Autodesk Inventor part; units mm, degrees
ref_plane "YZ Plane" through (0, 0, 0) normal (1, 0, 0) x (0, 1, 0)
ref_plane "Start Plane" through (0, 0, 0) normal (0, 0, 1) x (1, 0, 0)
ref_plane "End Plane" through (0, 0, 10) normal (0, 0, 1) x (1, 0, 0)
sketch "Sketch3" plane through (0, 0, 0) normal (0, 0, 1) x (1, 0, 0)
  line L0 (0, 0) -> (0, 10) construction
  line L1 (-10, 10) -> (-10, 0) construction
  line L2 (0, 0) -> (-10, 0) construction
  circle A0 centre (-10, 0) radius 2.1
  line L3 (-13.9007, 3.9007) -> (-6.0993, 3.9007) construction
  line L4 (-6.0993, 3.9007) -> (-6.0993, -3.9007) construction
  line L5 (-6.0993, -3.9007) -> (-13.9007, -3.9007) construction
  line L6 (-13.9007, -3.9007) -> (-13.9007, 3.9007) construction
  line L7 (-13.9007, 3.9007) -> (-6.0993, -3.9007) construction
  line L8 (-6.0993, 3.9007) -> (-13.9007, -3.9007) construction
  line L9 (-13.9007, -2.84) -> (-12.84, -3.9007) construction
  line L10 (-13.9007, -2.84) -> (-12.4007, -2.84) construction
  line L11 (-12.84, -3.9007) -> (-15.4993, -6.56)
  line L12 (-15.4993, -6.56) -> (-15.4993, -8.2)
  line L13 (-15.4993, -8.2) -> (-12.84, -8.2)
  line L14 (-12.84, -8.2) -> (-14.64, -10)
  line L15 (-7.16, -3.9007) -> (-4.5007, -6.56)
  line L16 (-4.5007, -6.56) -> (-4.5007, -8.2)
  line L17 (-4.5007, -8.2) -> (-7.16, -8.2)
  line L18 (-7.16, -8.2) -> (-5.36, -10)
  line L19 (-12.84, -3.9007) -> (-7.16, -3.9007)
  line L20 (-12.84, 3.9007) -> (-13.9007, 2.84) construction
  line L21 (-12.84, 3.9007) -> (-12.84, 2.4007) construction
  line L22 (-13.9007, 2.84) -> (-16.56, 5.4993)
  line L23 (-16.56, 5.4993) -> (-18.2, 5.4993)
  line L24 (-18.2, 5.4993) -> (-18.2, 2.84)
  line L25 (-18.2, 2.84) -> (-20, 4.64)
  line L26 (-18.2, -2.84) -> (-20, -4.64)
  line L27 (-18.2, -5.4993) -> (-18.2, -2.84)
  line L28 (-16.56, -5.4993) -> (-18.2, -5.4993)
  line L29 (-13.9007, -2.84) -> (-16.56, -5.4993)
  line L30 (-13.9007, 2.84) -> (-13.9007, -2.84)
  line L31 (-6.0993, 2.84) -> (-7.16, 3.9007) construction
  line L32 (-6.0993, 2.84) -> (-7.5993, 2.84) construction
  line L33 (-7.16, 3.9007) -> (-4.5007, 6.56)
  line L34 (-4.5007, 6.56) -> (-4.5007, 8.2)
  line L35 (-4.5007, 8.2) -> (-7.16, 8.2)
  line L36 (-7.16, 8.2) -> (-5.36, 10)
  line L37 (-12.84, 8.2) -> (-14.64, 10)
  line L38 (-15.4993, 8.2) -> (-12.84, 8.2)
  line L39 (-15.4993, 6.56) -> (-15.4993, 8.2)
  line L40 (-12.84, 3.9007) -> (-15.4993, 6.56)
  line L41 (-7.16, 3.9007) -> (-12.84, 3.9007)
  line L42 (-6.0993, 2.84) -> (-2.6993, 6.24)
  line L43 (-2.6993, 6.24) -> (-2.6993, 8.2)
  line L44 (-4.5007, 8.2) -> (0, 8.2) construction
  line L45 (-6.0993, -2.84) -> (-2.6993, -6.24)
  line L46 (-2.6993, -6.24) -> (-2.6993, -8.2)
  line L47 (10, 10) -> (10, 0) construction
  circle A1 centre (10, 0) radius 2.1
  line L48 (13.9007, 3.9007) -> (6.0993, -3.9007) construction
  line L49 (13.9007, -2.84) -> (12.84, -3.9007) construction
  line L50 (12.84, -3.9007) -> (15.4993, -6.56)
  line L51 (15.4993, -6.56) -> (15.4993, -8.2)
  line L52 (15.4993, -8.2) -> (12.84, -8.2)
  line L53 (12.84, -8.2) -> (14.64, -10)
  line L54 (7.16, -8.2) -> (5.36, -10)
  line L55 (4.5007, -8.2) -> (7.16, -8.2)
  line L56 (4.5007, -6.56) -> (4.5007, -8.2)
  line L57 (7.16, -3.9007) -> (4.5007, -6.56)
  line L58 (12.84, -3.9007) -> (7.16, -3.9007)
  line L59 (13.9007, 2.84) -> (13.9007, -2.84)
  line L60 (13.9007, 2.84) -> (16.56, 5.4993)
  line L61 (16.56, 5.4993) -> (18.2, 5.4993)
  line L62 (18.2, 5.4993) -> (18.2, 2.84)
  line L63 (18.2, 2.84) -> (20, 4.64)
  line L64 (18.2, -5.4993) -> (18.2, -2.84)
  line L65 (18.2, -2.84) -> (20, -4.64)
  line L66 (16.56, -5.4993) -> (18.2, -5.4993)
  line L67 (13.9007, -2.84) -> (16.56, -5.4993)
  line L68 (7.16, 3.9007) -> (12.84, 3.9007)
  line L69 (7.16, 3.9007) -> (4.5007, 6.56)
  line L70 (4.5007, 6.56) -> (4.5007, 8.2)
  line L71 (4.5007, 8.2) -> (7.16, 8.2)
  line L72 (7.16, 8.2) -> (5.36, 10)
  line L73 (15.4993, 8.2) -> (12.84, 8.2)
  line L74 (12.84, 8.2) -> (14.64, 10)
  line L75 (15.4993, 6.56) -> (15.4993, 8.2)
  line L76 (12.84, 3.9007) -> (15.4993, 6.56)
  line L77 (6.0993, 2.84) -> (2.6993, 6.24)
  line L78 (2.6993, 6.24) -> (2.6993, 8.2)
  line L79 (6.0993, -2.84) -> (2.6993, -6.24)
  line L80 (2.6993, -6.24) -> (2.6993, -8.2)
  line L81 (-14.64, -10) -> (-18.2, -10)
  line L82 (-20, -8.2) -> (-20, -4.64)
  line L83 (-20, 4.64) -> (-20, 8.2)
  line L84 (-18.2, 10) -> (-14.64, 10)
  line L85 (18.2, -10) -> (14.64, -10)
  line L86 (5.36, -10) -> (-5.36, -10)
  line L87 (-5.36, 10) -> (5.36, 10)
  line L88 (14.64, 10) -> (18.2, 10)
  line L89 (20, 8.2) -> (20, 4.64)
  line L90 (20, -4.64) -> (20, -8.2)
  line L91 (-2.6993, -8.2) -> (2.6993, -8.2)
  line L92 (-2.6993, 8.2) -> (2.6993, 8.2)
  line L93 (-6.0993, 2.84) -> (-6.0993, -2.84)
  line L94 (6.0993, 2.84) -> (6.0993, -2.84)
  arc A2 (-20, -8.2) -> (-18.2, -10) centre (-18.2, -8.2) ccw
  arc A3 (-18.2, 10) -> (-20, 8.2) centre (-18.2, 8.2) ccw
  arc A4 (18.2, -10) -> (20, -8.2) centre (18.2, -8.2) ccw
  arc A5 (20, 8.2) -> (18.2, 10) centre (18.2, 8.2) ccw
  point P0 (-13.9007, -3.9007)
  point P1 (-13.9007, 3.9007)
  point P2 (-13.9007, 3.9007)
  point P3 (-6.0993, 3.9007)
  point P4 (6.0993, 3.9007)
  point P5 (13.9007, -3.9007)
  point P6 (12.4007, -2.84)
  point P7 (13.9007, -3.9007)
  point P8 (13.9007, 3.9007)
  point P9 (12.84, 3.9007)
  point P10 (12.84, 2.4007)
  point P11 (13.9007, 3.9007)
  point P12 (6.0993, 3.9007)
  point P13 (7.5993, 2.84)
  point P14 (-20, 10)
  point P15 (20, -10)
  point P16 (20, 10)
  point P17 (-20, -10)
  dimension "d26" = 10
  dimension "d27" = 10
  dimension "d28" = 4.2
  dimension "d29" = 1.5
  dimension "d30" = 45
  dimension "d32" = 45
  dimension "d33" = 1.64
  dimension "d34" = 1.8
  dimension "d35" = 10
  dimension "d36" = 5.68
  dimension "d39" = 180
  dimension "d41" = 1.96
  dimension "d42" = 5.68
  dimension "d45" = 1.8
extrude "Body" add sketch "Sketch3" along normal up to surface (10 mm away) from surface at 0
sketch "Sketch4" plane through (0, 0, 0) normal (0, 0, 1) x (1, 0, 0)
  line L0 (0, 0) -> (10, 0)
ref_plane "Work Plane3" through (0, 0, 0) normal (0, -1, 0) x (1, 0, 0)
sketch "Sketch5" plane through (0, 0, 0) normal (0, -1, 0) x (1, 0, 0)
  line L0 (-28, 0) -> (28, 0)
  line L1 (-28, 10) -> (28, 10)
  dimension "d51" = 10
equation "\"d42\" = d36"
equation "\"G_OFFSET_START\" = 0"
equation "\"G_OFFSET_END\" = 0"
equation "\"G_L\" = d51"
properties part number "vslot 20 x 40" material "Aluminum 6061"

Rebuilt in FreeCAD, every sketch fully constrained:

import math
import FreeCAD as App
import Part
import Sketcher
from FreeCAD import Vector


def add_polygon(sketch, points):
    """Adds a closed chain of lines whose ends are joined by coincident constraints."""
    first, n = sketch.GeometryCount, len(points)
    for a, b in zip(points, points[1:] + points[:1]):
        sketch.addGeometry(Part.LineSegment(App.Vector(*a, 0), App.Vector(*b, 0)), False)
    for i in range(n):
        sketch.addConstraint(Sketcher.Constraint("Coincident", first + i, 2, first + (i + 1) % n, 1))

doc = App.newDocument("Part")
body = doc.addObject("PartDesign::Body", "Body")

# Sketch on XY plane
sketch1 = doc.addObject("Sketcher::SketchObject", "Sketch")
body.addObject(sketch1)
sketch1.AttachmentSupport = (doc.XY_Plane, [""])
sketch1.MapMode = "FlatFace"
sketch1.addGeometry(Part.LineSegment(Vector(-15.5, -6.6, 0), Vector(-12.8, -3.9, 0)), False)  # 0
sketch1.addGeometry(Part.LineSegment(Vector(-12.8, -3.9, 0), Vector(-7.2, -3.9, 0)), False)  # 1
sketch1.addGeometry(Part.LineSegment(Vector(-7.2, -3.9, 0), Vector(-4.5, -6.6, 0)), False)  # 2
sketch1.addGeometry(Part.LineSegment(Vector(-4.5, -6.6, 0), Vector(-4.5, -8.2, 0)), False)  # 3
sketch1.addGeometry(Part.LineSegment(Vector(-4.5, -8.2, 0), Vector(-7.2, -8.2, 0)), False)  # 4
sketch1.addGeometry(Part.LineSegment(Vector(-7.2, -8.2, 0), Vector(-5.4, -10, 0)), False)  # 5
sketch1.addGeometry(Part.LineSegment(Vector(-5.4, -10, 0), Vector(5.4, -10, 0)), False)  # 6
sketch1.addGeometry(Part.LineSegment(Vector(5.4, -10, 0), Vector(7.2, -8.2, 0)), False)  # 7
sketch1.addGeometry(Part.LineSegment(Vector(7.2, -8.2, 0), Vector(4.5, -8.2, 0)), False)  # 8
sketch1.addGeometry(Part.LineSegment(Vector(4.5, -8.2, 0), Vector(4.5, -6.6, 0)), False)  # 9
sketch1.addGeometry(Part.LineSegment(Vector(4.5, -6.6, 0), Vector(7.2, -3.9, 0)), False)  # 10
sketch1.addGeometry(Part.LineSegment(Vector(7.2, -3.9, 0), Vector(12.8, -3.9, 0)), False)  # 11
sketch1.addGeometry(Part.LineSegment(Vector(12.8, -3.9, 0), Vector(15.5, -6.6, 0)), False)  # 12
sketch1.addGeometry(Part.LineSegment(Vector(15.5, -6.6, 0), Vector(15.5, -8.2, 0)), False)  # 13
sketch1.addGeometry(Part.LineSegment(Vector(15.5, -8.2, 0), Vector(12.8, -8.2, 0)), False)  # 14
sketch1.addGeometry(Part.LineSegment(Vector(12.8, -8.2, 0), Vector(14.6, -10, 0)), False)  # 15
sketch1.addGeometry(Part.LineSegment(Vector(14.6, -10, 0), Vector(18.2, -10, 0)), False)  # 16
sketch1.addGeometry(Part.ArcOfCircle(Part.Circle(Vector(18.2, -8.2, 0), Vector(0, 0, 1), 1.8), math.radians(-90), math.radians(0)), False)  # 17
sketch1.addGeometry(Part.LineSegment(Vector(20, -8.2, 0), Vector(20, -4.6, 0)), False)  # 18
sketch1.addGeometry(Part.LineSegment(Vector(20, -4.6, 0), Vector(18.2, -2.8, 0)), False)  # 19
sketch1.addGeometry(Part.LineSegment(Vector(18.2, -2.8, 0), Vector(18.2, -5.5, 0)), False)  # 20
sketch1.addGeometry(Part.LineSegment(Vector(18.2, -5.5, 0), Vector(16.6, -5.5, 0)), False)  # 21
sketch1.addGeometry(Part.LineSegment(Vector(16.6, -5.5, 0), Vector(13.9, -2.8, 0)), False)  # 22
sketch1.addGeometry(Part.LineSegment(Vector(13.9, -2.8, 0), Vector(13.9, 2.8, 0)), False)  # 23
sketch1.addGeometry(Part.LineSegment(Vector(13.9, 2.8, 0), Vector(16.6, 5.5, 0)), False)  # 24
sketch1.addGeometry(Part.LineSegment(Vector(16.6, 5.5, 0), Vector(18.2, 5.5, 0)), False)  # 25
sketch1.addGeometry(Part.LineSegment(Vector(18.2, 5.5, 0), Vector(18.2, 2.8, 0)), False)  # 26
sketch1.addGeometry(Part.LineSegment(Vector(18.2, 2.8, 0), Vector(20, 4.6, 0)), False)  # 27
sketch1.addGeometry(Part.LineSegment(Vector(20, 4.6, 0), Vector(20, 8.2, 0)), False)  # 28
sketch1.addGeometry(Part.ArcOfCircle(Part.Circle(Vector(18.2, 8.2, 0), Vector(0, 0, 1), 1.8), math.radians(0), math.radians(90)), False)  # 29
sketch1.addGeometry(Part.LineSegment(Vector(18.2, 10, 0), Vector(14.6, 10, 0)), False)  # 30
sketch1.addGeometry(Part.LineSegment(Vector(14.6, 10, 0), Vector(12.8, 8.2, 0)), False)  # 31
sketch1.addGeometry(Part.LineSegment(Vector(12.8, 8.2, 0), Vector(15.5, 8.2, 0)), False)  # 32
sketch1.addGeometry(Part.LineSegment(Vector(15.5, 8.2, 0), Vector(15.5, 6.6, 0)), False)  # 33
sketch1.addGeometry(Part.LineSegment(Vector(15.5, 6.6, 0), Vector(12.8, 3.9, 0)), False)  # 34
sketch1.addGeometry(Part.LineSegment(Vector(12.8, 3.9, 0), Vector(7.2, 3.9, 0)), False)  # 35
sketch1.addGeometry(Part.LineSegment(Vector(7.2, 3.9, 0), Vector(4.5, 6.6, 0)), False)  # 36
sketch1.addGeometry(Part.LineSegment(Vector(4.5, 6.6, 0), Vector(4.5, 8.2, 0)), False)  # 37
sketch1.addGeometry(Part.LineSegment(Vector(4.5, 8.2, 0), Vector(7.2, 8.2, 0)), False)  # 38
sketch1.addGeometry(Part.LineSegment(Vector(7.2, 8.2, 0), Vector(5.4, 10, 0)), False)  # 39
sketch1.addGeometry(Part.LineSegment(Vector(5.4, 10, 0), Vector(-5.4, 10, 0)), False)  # 40
sketch1.addGeometry(Part.LineSegment(Vector(-5.4, 10, 0), Vector(-7.2, 8.2, 0)), False)  # 41
sketch1.addGeometry(Part.LineSegment(Vector(-7.2, 8.2, 0), Vector(-4.5, 8.2, 0)), False)  # 42
sketch1.addGeometry(Part.LineSegment(Vector(-4.5, 8.2, 0), Vector(-4.5, 6.6, 0)), False)  # 43
sketch1.addGeometry(Part.LineSegment(Vector(-4.5, 6.6, 0), Vector(-7.2, 3.9, 0)), False)  # 44
sketch1.addGeometry(Part.LineSegment(Vector(-7.2, 3.9, 0), Vector(-12.8, 3.9, 0)), False)  # 45
sketch1.addGeometry(Part.LineSegment(Vector(-12.8, 3.9, 0), Vector(-15.5, 6.6, 0)), False)  # 46
sketch1.addGeometry(Part.LineSegment(Vector(-15.5, 6.6, 0), Vector(-15.5, 8.2, 0)), False)  # 47
sketch1.addGeometry(Part.LineSegment(Vector(-15.5, 8.2, 0), Vector(-12.8, 8.2, 0)), False)  # 48
sketch1.addGeometry(Part.LineSegment(Vector(-12.8, 8.2, 0), Vector(-14.6, 10, 0)), False)  # 49
sketch1.addGeometry(Part.LineSegment(Vector(-14.6, 10, 0), Vector(-18.2, 10, 0)), False)  # 50
sketch1.addGeometry(Part.ArcOfCircle(Part.Circle(Vector(-18.2, 8.2, 0), Vector(0, 0, 1), 1.8), math.radians(90), math.radians(180)), False)  # 51
sketch1.addGeometry(Part.LineSegment(Vector(-20, 8.2, 0), Vector(-20, 4.6, 0)), False)  # 52
sketch1.addGeometry(Part.LineSegment(Vector(-20, 4.6, 0), Vector(-18.2, 2.8, 0)), False)  # 53
sketch1.addGeometry(Part.LineSegment(Vector(-18.2, 2.8, 0), Vector(-18.2, 5.5, 0)), False)  # 54
sketch1.addGeometry(Part.LineSegment(Vector(-18.2, 5.5, 0), Vector(-16.6, 5.5, 0)), False)  # 55
sketch1.addGeometry(Part.LineSegment(Vector(-16.6, 5.5, 0), Vector(-13.9, 2.8, 0)), False)  # 56
sketch1.addGeometry(Part.LineSegment(Vector(-13.9, 2.8, 0), Vector(-13.9, -2.8, 0)), False)  # 57
sketch1.addGeometry(Part.LineSegment(Vector(-13.9, -2.8, 0), Vector(-16.6, -5.5, 0)), False)  # 58
sketch1.addGeometry(Part.LineSegment(Vector(-16.6, -5.5, 0), Vector(-18.2, -5.5, 0)), False)  # 59
sketch1.addGeometry(Part.LineSegment(Vector(-18.2, -5.5, 0), Vector(-18.2, -2.8, 0)), False)  # 60
sketch1.addGeometry(Part.LineSegment(Vector(-18.2, -2.8, 0), Vector(-20, -4.6, 0)), False)  # 61
sketch1.addGeometry(Part.LineSegment(Vector(-20, -4.6, 0), Vector(-20, -8.2, 0)), False)  # 62
sketch1.addGeometry(Part.ArcOfCircle(Part.Circle(Vector(-18.2, -8.2, 0), Vector(0, 0, 1), 1.8), math.radians(180), math.radians(270)), False)  # 63
sketch1.addGeometry(Part.LineSegment(Vector(-18.2, -10, 0), Vector(-14.6, -10, 0)), False)  # 64
sketch1.addGeometry(Part.LineSegment(Vector(-14.6, -10, 0), Vector(-12.8, -8.2, 0)), False)  # 65
sketch1.addGeometry(Part.LineSegment(Vector(-12.8, -8.2, 0), Vector(-15.5, -8.2, 0)), False)  # 66
sketch1.addGeometry(Part.LineSegment(Vector(-15.5, -8.2, 0), Vector(-15.5, -6.6, 0)), False)  # 67
sketch1.addGeometry(Part.Circle(Vector(-10, 0, 0), Vector(0, 0, 1), 2.1), False)  # 68
add_polygon(sketch1, [(-6.1, -2.8), (-6.1, 2.8), (-2.7, 6.2), (-2.7, 8.2), (2.7, 8.2), (2.7, 6.2), (6.1, 2.8), (6.1, -2.8), (2.7, -6.2), (2.7, -8.2), (-2.7, -8.2), (-2.7, -6.2)])  # lines 69-80
sketch1.addGeometry(Part.Circle(Vector(10, 0, 0), Vector(0, 0, 1), 2.1), False)  # 81
sketch1.addConstraint(Sketcher.Constraint("Coincident", 0, 2, 1, 1))
sketch1.addConstraint(Sketcher.Constraint("Coincident", 1, 2, 2, 1))
sketch1.addConstraint(Sketcher.Constraint("Coincident", 2, 2, 3, 1))
sketch1.addConstraint(Sketcher.Constraint("Coincident", 3, 2, 4, 1))
sketch1.addConstraint(Sketcher.Constraint("Coincident", 4, 2, 5, 1))
sketch1.addConstraint(Sketcher.Constraint("Coincident", 5, 2, 6, 1))
sketch1.addConstraint(Sketcher.Constraint("Coincident", 6, 2, 7, 1))
sketch1.addConstraint(Sketcher.Constraint("Coincident", 7, 2, 8, 1))
sketch1.addConstraint(Sketcher.Constraint("Coincident", 8, 2, 9, 1))
sketch1.addConstraint(Sketcher.Constraint("Coincident", 9, 2, 10, 1))
sketch1.addConstraint(Sketcher.Constraint("Coincident", 10, 2, 11, 1))
sketch1.addConstraint(Sketcher.Constraint("Coincident", 11, 2, 12, 1))
sketch1.addConstraint(Sketcher.Constraint("Coincident", 12, 2, 13, 1))
sketch1.addConstraint(Sketcher.Constraint("Coincident", 13, 2, 14, 1))
sketch1.addConstraint(Sketcher.Constraint("Coincident", 14, 2, 15, 1))
sketch1.addConstraint(Sketcher.Constraint("Coincident", 15, 2, 16, 1))
sketch1.addConstraint(Sketcher.Constraint("Tangent", 16, 2, 17, 1))
sketch1.addConstraint(Sketcher.Constraint("Tangent", 17, 2, 18, 1))
sketch1.addConstraint(Sketcher.Constraint("Coincident", 18, 2, 19, 1))
sketch1.addConstraint(Sketcher.Constraint("Coincident", 19, 2, 20, 1))
sketch1.addConstraint(Sketcher.Constraint("Coincident", 20, 2, 21, 1))
sketch1.addConstraint(Sketcher.Constraint("Coincident", 21, 2, 22, 1))
sketch1.addConstraint(Sketcher.Constraint("Coincident", 22, 2, 23, 1))
sketch1.addConstraint(Sketcher.Constraint("Coincident", 23, 2, 24, 1))
sketch1.addConstraint(Sketcher.Constraint("Coincident", 24, 2, 25, 1))
sketch1.addConstraint(Sketcher.Constraint("Coincident", 25, 2, 26, 1))
sketch1.addConstraint(Sketcher.Constraint("Coincident", 26, 2, 27, 1))
sketch1.addConstraint(Sketcher.Constraint("Coincident", 27, 2, 28, 1))
sketch1.addConstraint(Sketcher.Constraint("Tangent", 28, 2, 29, 1))
sketch1.addConstraint(Sketcher.Constraint("Tangent", 29, 2, 30, 1))
sketch1.addConstraint(Sketcher.Constraint("Coincident", 30, 2, 31, 1))
sketch1.addConstraint(Sketcher.Constraint("Coincident", 31, 2, 32, 1))
sketch1.addConstraint(Sketcher.Constraint("Coincident", 32, 2, 33, 1))
sketch1.addConstraint(Sketcher.Constraint("Coincident", 33, 2, 34, 1))
sketch1.addConstraint(Sketcher.Constraint("Coincident", 34, 2, 35, 1))
sketch1.addConstraint(Sketcher.Constraint("Coincident", 35, 2, 36, 1))
sketch1.addConstraint(Sketcher.Constraint("Coincident", 36, 2, 37, 1))
sketch1.addConstraint(Sketcher.Constraint("Coincident", 37, 2, 38, 1))
sketch1.addConstraint(Sketcher.Constraint("Coincident", 38, 2, 39, 1))
sketch1.addConstraint(Sketcher.Constraint("Coincident", 39, 2, 40, 1))
sketch1.addConstraint(Sketcher.Constraint("Coincident", 40, 2, 41, 1))
sketch1.addConstraint(Sketcher.Constraint("Coincident", 41, 2, 42, 1))
sketch1.addConstraint(Sketcher.Constraint("Coincident", 42, 2, 43, 1))
sketch1.addConstraint(Sketcher.Constraint("Coincident", 43, 2, 44, 1))
sketch1.addConstraint(Sketcher.Constraint("Coincident", 44, 2, 45, 1))
sketch1.addConstraint(Sketcher.Constraint("Coincident", 45, 2, 46, 1))
sketch1.addConstraint(Sketcher.Constraint("Coincident", 46, 2, 47, 1))
sketch1.addConstraint(Sketcher.Constraint("Coincident", 47, 2, 48, 1))
sketch1.addConstraint(Sketcher.Constraint("Coincident", 48, 2, 49, 1))
sketch1.addConstraint(Sketcher.Constraint("Coincident", 49, 2, 50, 1))
sketch1.addConstraint(Sketcher.Constraint("Tangent", 50, 2, 51, 1))
sketch1.addConstraint(Sketcher.Constraint("Tangent", 51, 2, 52, 1))
sketch1.addConstraint(Sketcher.Constraint("Coincident", 52, 2, 53, 1))
sketch1.addConstraint(Sketcher.Constraint("Coincident", 53, 2, 54, 1))
sketch1.addConstraint(Sketcher.Constraint("Coincident", 54, 2, 55, 1))
sketch1.addConstraint(Sketcher.Constraint("Coincident", 55, 2, 56, 1))
sketch1.addConstraint(Sketcher.Constraint("Coincident", 56, 2, 57, 1))
sketch1.addConstraint(Sketcher.Constraint("Coincident", 57, 2, 58, 1))
sketch1.addConstraint(Sketcher.Constraint("Coincident", 58, 2, 59, 1))
sketch1.addConstraint(Sketcher.Constraint("Coincident", 59, 2, 60, 1))
sketch1.addConstraint(Sketcher.Constraint("Coincident", 60, 2, 61, 1))
sketch1.addConstraint(Sketcher.Constraint("Coincident", 61, 2, 62, 1))
sketch1.addConstraint(Sketcher.Constraint("Tangent", 62, 2, 63, 1))
sketch1.addConstraint(Sketcher.Constraint("Tangent", 63, 2, 64, 1))
sketch1.addConstraint(Sketcher.Constraint("Coincident", 64, 2, 65, 1))
sketch1.addConstraint(Sketcher.Constraint("Coincident", 65, 2, 66, 1))
sketch1.addConstraint(Sketcher.Constraint("Coincident", 66, 2, 67, 1))
sketch1.addConstraint(Sketcher.Constraint("Coincident", 67, 2, 0, 1))
sketch1.addConstraint(Sketcher.Constraint("Horizontal", 1))
sketch1.addConstraint(Sketcher.Constraint("Vertical", 3))
sketch1.addConstraint(Sketcher.Constraint("Horizontal", 4))
sketch1.addConstraint(Sketcher.Constraint("Horizontal", 6))
sketch1.addConstraint(Sketcher.Constraint("Horizontal", 8))
sketch1.addConstraint(Sketcher.Constraint("Vertical", 9))
sketch1.addConstraint(Sketcher.Constraint("Horizontal", 11))
sketch1.addConstraint(Sketcher.Constraint("Vertical", 13))
sketch1.addConstraint(Sketcher.Constraint("Horizontal", 14))
sketch1.addConstraint(Sketcher.Constraint("Horizontal", 16))
sketch1.addConstraint(Sketcher.Constraint("Vertical", 18))
sketch1.addConstraint(Sketcher.Constraint("Vertical", 20))
sketch1.addConstraint(Sketcher.Constraint("Horizontal", 21))
sketch1.addConstraint(Sketcher.Constraint("Vertical", 23))
sketch1.addConstraint(Sketcher.Constraint("Horizontal", 25))
sketch1.addConstraint(Sketcher.Constraint("Vertical", 26))
sketch1.addConstraint(Sketcher.Constraint("Vertical", 28))
sketch1.addConstraint(Sketcher.Constraint("Horizontal", 30))
sketch1.addConstraint(Sketcher.Constraint("Horizontal", 32))
sketch1.addConstraint(Sketcher.Constraint("Vertical", 33))
sketch1.addConstraint(Sketcher.Constraint("Horizontal", 35))
sketch1.addConstraint(Sketcher.Constraint("Vertical", 37))
sketch1.addConstraint(Sketcher.Constraint("Horizontal", 38))
sketch1.addConstraint(Sketcher.Constraint("Horizontal", 40))
sketch1.addConstraint(Sketcher.Constraint("Horizontal", 42))
sketch1.addConstraint(Sketcher.Constraint("Vertical", 43))
sketch1.addConstraint(Sketcher.Constraint("Horizontal", 45))
sketch1.addConstraint(Sketcher.Constraint("Vertical", 47))
sketch1.addConstraint(Sketcher.Constraint("Horizontal", 48))
sketch1.addConstraint(Sketcher.Constraint("Horizontal", 50))
sketch1.addConstraint(Sketcher.Constraint("Vertical", 52))
sketch1.addConstraint(Sketcher.Constraint("Vertical", 54))
sketch1.addConstraint(Sketcher.Constraint("Horizontal", 55))
sketch1.addConstraint(Sketcher.Constraint("Vertical", 57))
sketch1.addConstraint(Sketcher.Constraint("Horizontal", 59))
sketch1.addConstraint(Sketcher.Constraint("Vertical", 60))
sketch1.addConstraint(Sketcher.Constraint("Vertical", 62))
sketch1.addConstraint(Sketcher.Constraint("Horizontal", 64))
sketch1.addConstraint(Sketcher.Constraint("Horizontal", 66))
sketch1.addConstraint(Sketcher.Constraint("Vertical", 67))
sketch1.addConstraint(Sketcher.Constraint("Vertical", 69))
sketch1.addConstraint(Sketcher.Constraint("Vertical", 71))
sketch1.addConstraint(Sketcher.Constraint("Horizontal", 72))
sketch1.addConstraint(Sketcher.Constraint("Vertical", 73))
sketch1.addConstraint(Sketcher.Constraint("Vertical", 75))
sketch1.addConstraint(Sketcher.Constraint("Vertical", 77))
sketch1.addConstraint(Sketcher.Constraint("Horizontal", 78))
sketch1.addConstraint(Sketcher.Constraint("Vertical", 79))
sketch1.addConstraint(Sketcher.Constraint("Equal", 17, 29))
sketch1.addConstraint(Sketcher.Constraint("Equal", 29, 51))
sketch1.addConstraint(Sketcher.Constraint("Equal", 51, 63))
sketch1.addConstraint(Sketcher.Constraint("Equal", 68, 81))
sketch1.addConstraint(Sketcher.Constraint("Symmetric", 17, 3, 51, 3, -1, 1))
sketch1.addConstraint(Sketcher.Constraint("Symmetric", 29, 3, 63, 3, -1, 1))
sketch1.addConstraint(Sketcher.Constraint("Symmetric", 68, 3, 81, 3, -1, 1))
sketch1.addConstraint(Sketcher.Constraint("Symmetric", 0, 2, 34, 2, -1, 1))
sketch1.addConstraint(Sketcher.Constraint("Symmetric", 2, 2, 36, 2, -1, 1))
sketch1.addConstraint(Sketcher.Constraint("Symmetric", 4, 2, 38, 2, -1, 1))
sketch1.addConstraint(Sketcher.Constraint("Symmetric", 5, 2, 39, 2, -1, 1))
sketch1.addConstraint(Sketcher.Constraint("Symmetric", 7, 2, 41, 2, -1, 1))
sketch1.addConstraint(Sketcher.Constraint("Symmetric", 9, 2, 43, 2, -1, 1))
sketch1.addConstraint(Sketcher.Constraint("Symmetric", 10, 2, 44, 2, -1, 1))
sketch1.addConstraint(Sketcher.Constraint("Symmetric", 12, 2, 46, 2, -1, 1))
sketch1.addConstraint(Sketcher.Constraint("Symmetric", 14, 2, 48, 2, -1, 1))
sketch1.addConstraint(Sketcher.Constraint("Symmetric", 19, 2, 53, 2, -1, 1))
sketch1.addConstraint(Sketcher.Constraint("Symmetric", 21, 2, 55, 2, -1, 1))
sketch1.addConstraint(Sketcher.Constraint("Symmetric", 22, 2, 56, 2, -1, 1))
sketch1.addConstraint(Sketcher.Constraint("Symmetric", 24, 2, 58, 2, -1, 1))
sketch1.addConstraint(Sketcher.Constraint("Symmetric", 26, 2, 60, 2, -1, 1))
sketch1.addConstraint(Sketcher.Constraint("Symmetric", 31, 2, 65, 2, -1, 1))
sketch1.addConstraint(Sketcher.Constraint("Symmetric", 33, 2, 67, 2, -1, 1))
sketch1.addConstraint(Sketcher.Constraint("Symmetric", 69, 2, 75, 2, -1, 1))
sketch1.addConstraint(Sketcher.Constraint("Symmetric", 70, 2, 76, 2, -1, 1))
sketch1.addConstraint(Sketcher.Constraint("Symmetric", 72, 2, 78, 2, -1, 1))
sketch1.addConstraint(Sketcher.Constraint("Symmetric", 29, 3, 51, 3, -2))
sketch1.addConstraint(Sketcher.Constraint("Symmetric", 4, 2, 7, 2, -2))
sketch1.addConstraint(Sketcher.Constraint("Symmetric", 2, 2, 9, 2, -2))
sketch1.addConstraint(Sketcher.Constraint("Symmetric", 1, 2, 10, 2, -2))
sketch1.addConstraint(Sketcher.Constraint("Symmetric", 33, 2, 46, 2, -2))
sketch1.addConstraint(Sketcher.Constraint("Symmetric", 31, 2, 48, 2, -2))
sketch1.addConstraint(Sketcher.Constraint("Symmetric", 26, 2, 53, 2, -2))
sketch1.addConstraint(Sketcher.Constraint("Symmetric", 24, 2, 55, 2, -2))
sketch1.addConstraint(Sketcher.Constraint("Symmetric", 70, 2, 73, 2, -2))
sketch1.addConstraint(Sketcher.Constraint("PointOnObject", 68, 3, -1))
sketch1.addConstraint(Sketcher.Constraint("Perpendicular", 0, 2))
sketch1.addConstraint(Sketcher.Constraint("Parallel", 2, 5))
sketch1.addConstraint(Sketcher.Constraint("Perpendicular", 5, 7))
sketch1.addConstraint(Sketcher.Constraint("Parallel", 7, 10))
sketch1.addConstraint(Sketcher.Constraint("Perpendicular", 10, 12))
sketch1.addConstraint(Sketcher.Constraint("Parallel", 12, 15))
sketch1.addConstraint(Sketcher.Constraint("Parallel", 15, 19))
sketch1.addConstraint(Sketcher.Constraint("Parallel", 19, 22))
sketch1.addConstraint(Sketcher.Constraint("Perpendicular", 22, 24))
sketch1.addConstraint(Sketcher.Constraint("Parallel", 24, 27))
sketch1.addConstraint(Sketcher.Constraint("Parallel", 27, 31))
sketch1.addConstraint(Sketcher.Constraint("Perpendicular", 34, 36))
sketch1.addConstraint(Sketcher.Constraint("Perpendicular", 39, 41))
sketch1.addConstraint(Sketcher.Constraint("Perpendicular", 44, 46))
sketch1.addConstraint(Sketcher.Constraint("Parallel", 46, 49))
sketch1.addConstraint(Sketcher.Constraint("Parallel", 49, 53))
sketch1.addConstraint(Sketcher.Constraint("Perpendicular", 56, 58))
sketch1.addConstraint(Sketcher.Constraint("Parallel", 58, 61))
sketch1.addConstraint(Sketcher.Constraint("Parallel", 61, 65))
sketch1.addConstraint(Sketcher.Constraint("Parallel", 65, 70))
sketch1.addConstraint(Sketcher.Constraint("Perpendicular", 70, 74))
sketch1.addConstraint(Sketcher.Constraint("Perpendicular", 76, 80))
sketch1.addConstraint(Sketcher.Constraint("Horizontal", 63, 3, 3, 2))
sketch1.addConstraint(Sketcher.Constraint("Horizontal", 9, 2, 12, 2))
sketch1.addConstraint(Sketcher.Constraint("Horizontal", 8, 2, 13, 2))
sketch1.addConstraint(Sketcher.Constraint("Horizontal", 6, 2, 15, 2))
sketch1.addConstraint(Sketcher.Constraint("Horizontal", 19, 2, 22, 2))
sketch1.addConstraint(Sketcher.Constraint("Horizontal", 56, 2, 69, 2))
sketch1.addConstraint(Sketcher.Constraint("Horizontal", 51, 2, 71, 2))
sketch1.addConstraint(Sketcher.Constraint("Horizontal", 76, 2, 79, 2))
sketch1.addConstraint(Sketcher.Constraint("Vertical", 1, 2, 4, 2))
sketch1.addConstraint(Sketcher.Constraint("Vertical", 11, 2, 14, 2))
sketch1.addConstraint(Sketcher.Constraint("Vertical", 16, 2, 19, 2))
sketch1.addConstraint(Sketcher.Constraint("Equal", 59, 3))
sketch1.addConstraint(Sketcher.Constraint("Equal", 64, 18))
sketch1.addConstraint(Sketcher.Constraint("Equal", 66, 20))
sketch1.addConstraint(Sketcher.Constraint("Equal", 45, 23))
sketch1.addConstraint(Sketcher.Constraint("Diameter", 68, 4.2))
sketch1.addConstraint(Sketcher.Constraint("Radius", 17, 1.8))
sketch1.addConstraint(Sketcher.Constraint("DistanceX", 68, 3, -1, 1, 10.0))
sketch1.addConstraint(Sketcher.Constraint("DistanceY", 5, 2, -1, 1, 10.0))
sketch1.addConstraint(Sketcher.Constraint("DistanceX", 1, 1, 1, 2, 5.68))
sketch1.addConstraint(Sketcher.Constraint("DistanceX", 21, 2, 21, 1, 1.64))
sketch1.addConstraint(Sketcher.Constraint("DistanceY", 71, 1, 71, 2, 1.96))
sketch1.addConstraint(Sketcher.Constraint("DistanceX", -1, 1, 17, 2, 20.0))
sketch1.addConstraint(Sketcher.Constraint("DistanceX", 4, 2, 4, 1, 2.6593))
sketch1.addConstraint(Sketcher.Constraint("DistanceX", 72, 1, 72, 2, 5.3986))
pad1 = doc.addObject("PartDesign::Pad", "Pad")
body.addObject(pad1)
pad1.Profile = sketch1
pad1.Length = 10

doc.recompute()
